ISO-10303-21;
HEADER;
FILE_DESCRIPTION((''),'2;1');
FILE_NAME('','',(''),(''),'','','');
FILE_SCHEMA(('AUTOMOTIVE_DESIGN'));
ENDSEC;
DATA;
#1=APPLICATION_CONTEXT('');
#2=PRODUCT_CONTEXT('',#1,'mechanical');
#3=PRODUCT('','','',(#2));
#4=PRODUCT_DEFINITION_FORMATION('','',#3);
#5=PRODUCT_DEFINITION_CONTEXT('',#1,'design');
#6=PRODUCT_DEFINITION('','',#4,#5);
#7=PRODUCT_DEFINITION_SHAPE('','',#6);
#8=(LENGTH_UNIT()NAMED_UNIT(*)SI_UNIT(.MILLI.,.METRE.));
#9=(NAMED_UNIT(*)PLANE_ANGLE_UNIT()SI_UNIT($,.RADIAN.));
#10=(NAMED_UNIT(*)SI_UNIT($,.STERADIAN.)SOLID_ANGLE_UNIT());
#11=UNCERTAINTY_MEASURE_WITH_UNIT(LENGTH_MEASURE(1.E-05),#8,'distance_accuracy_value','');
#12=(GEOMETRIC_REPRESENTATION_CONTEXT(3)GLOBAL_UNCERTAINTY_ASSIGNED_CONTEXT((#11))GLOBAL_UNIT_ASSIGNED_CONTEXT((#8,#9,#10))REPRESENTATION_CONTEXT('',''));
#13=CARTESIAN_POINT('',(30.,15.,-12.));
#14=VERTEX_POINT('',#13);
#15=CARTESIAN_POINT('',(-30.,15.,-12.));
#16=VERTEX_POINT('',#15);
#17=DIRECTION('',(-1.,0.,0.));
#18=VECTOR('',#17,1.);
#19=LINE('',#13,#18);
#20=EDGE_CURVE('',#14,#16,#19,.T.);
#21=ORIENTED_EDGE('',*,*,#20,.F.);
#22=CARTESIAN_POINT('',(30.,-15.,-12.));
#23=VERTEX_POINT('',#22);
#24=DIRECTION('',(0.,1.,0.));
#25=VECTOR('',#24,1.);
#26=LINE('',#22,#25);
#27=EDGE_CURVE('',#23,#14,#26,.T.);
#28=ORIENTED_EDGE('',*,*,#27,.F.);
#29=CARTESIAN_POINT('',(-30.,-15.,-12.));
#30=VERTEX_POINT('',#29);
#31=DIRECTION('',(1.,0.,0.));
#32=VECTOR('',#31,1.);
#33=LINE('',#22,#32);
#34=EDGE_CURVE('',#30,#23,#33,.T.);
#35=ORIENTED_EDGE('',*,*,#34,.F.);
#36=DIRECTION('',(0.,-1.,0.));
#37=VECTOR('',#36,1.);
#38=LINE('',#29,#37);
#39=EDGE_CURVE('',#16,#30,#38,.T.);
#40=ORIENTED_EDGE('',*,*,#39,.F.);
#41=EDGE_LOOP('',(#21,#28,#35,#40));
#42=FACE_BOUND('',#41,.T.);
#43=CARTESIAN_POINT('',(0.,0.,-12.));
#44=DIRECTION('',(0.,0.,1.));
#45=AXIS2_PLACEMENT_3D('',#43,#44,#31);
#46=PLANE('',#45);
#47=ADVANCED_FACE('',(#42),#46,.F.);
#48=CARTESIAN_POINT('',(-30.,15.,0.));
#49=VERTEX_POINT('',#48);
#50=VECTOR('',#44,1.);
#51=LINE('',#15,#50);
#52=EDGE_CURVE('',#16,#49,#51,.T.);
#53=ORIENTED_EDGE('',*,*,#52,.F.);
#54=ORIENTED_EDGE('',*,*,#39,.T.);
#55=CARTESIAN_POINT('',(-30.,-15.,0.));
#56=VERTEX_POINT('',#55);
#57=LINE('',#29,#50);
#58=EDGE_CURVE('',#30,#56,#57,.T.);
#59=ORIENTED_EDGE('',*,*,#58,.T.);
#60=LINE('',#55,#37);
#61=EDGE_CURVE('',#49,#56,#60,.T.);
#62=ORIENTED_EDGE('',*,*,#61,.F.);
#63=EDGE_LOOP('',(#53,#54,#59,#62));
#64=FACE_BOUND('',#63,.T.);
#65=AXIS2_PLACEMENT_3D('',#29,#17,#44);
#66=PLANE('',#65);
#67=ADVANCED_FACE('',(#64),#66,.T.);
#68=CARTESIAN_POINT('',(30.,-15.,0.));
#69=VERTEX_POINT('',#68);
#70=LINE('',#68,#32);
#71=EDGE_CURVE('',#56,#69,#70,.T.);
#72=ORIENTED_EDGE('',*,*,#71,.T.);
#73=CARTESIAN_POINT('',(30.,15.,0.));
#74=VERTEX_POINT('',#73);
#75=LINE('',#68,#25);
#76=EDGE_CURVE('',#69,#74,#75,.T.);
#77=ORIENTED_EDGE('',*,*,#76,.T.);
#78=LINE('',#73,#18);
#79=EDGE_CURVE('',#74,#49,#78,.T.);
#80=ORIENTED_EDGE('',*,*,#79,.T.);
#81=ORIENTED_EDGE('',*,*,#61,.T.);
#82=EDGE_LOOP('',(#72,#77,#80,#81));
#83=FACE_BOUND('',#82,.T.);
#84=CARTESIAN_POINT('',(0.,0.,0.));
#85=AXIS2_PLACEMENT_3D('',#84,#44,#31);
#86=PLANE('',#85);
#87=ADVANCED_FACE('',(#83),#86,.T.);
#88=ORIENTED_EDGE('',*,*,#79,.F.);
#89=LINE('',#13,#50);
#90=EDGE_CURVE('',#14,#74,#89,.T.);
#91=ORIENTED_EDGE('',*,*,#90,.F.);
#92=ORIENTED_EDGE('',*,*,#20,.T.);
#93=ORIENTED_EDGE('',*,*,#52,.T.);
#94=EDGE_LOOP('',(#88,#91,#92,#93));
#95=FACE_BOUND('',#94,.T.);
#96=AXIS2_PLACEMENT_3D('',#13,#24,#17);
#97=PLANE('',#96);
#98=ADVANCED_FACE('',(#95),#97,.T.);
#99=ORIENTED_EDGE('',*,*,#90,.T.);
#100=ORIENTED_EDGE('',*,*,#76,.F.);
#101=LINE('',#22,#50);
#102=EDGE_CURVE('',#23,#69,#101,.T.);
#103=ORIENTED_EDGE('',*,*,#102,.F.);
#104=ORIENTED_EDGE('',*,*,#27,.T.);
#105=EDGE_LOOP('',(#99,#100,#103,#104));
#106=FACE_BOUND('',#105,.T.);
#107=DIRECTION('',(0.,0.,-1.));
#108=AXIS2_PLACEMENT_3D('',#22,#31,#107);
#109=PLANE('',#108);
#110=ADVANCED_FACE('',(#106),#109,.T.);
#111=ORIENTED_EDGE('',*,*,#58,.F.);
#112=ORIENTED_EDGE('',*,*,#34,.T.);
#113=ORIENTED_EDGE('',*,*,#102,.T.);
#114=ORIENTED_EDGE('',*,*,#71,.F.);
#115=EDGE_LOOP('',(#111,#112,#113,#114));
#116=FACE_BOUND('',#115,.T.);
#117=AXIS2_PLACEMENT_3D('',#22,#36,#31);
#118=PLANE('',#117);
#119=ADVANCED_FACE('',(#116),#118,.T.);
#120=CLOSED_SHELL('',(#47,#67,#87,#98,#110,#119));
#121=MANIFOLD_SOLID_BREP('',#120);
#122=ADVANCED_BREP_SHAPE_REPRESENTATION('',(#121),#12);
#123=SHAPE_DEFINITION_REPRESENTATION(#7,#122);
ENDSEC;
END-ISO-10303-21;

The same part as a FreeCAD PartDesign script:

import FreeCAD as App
import Part
import Sketcher
Q = App.Units.Quantity


def add_polygon(sketch, points):
    """Adds a closed chain of lines whose ends are joined by coincident constraints."""
    first, n = sketch.GeometryCount, len(points)
    for a, b in zip(points, points[1:] + points[:1]):
        sketch.addGeometry(Part.LineSegment(App.Vector(*a, 0), App.Vector(*b, 0)), False)
    for i in range(n):
        sketch.addConstraint(Sketcher.Constraint("Coincident", first + i, 2, first + (i + 1) % n, 1))

doc = App.newDocument("Part")
body = doc.addObject("PartDesign::Body", "Body")

# Sketch on XY plane
sketch1 = body.newObject("Sketcher::SketchObject", "Sketch")
sketch1.AttachmentSupport = (doc.getObject("XY_Plane"), [""])
sketch1.MapMode = "FlatFace"
add_polygon(sketch1, [(-30, 15), (-30, -15), (30, -15), (30, 15)])  # lines 0-3
sketch1.addConstraint([
    Sketcher.Constraint("Vertical", 0),
    Sketcher.Constraint("Horizontal", 1),
    Sketcher.Constraint("Vertical", 2),
    Sketcher.Constraint("Horizontal", 3),
    Sketcher.Constraint("Symmetric", 0, 2, 2, 2, -1, 1),
    Sketcher.Constraint("DistanceX", 1, 1, 1, 2, Q("60 mm")),
    Sketcher.Constraint("DistanceY", 0, 2, 0, 1, Q("30 mm")),
])
pad1 = body.newObject("PartDesign::Pad", "Pad")
pad1.Profile = sketch1
pad1.Length = 12
pad1.Reversed = True

doc.recompute()
